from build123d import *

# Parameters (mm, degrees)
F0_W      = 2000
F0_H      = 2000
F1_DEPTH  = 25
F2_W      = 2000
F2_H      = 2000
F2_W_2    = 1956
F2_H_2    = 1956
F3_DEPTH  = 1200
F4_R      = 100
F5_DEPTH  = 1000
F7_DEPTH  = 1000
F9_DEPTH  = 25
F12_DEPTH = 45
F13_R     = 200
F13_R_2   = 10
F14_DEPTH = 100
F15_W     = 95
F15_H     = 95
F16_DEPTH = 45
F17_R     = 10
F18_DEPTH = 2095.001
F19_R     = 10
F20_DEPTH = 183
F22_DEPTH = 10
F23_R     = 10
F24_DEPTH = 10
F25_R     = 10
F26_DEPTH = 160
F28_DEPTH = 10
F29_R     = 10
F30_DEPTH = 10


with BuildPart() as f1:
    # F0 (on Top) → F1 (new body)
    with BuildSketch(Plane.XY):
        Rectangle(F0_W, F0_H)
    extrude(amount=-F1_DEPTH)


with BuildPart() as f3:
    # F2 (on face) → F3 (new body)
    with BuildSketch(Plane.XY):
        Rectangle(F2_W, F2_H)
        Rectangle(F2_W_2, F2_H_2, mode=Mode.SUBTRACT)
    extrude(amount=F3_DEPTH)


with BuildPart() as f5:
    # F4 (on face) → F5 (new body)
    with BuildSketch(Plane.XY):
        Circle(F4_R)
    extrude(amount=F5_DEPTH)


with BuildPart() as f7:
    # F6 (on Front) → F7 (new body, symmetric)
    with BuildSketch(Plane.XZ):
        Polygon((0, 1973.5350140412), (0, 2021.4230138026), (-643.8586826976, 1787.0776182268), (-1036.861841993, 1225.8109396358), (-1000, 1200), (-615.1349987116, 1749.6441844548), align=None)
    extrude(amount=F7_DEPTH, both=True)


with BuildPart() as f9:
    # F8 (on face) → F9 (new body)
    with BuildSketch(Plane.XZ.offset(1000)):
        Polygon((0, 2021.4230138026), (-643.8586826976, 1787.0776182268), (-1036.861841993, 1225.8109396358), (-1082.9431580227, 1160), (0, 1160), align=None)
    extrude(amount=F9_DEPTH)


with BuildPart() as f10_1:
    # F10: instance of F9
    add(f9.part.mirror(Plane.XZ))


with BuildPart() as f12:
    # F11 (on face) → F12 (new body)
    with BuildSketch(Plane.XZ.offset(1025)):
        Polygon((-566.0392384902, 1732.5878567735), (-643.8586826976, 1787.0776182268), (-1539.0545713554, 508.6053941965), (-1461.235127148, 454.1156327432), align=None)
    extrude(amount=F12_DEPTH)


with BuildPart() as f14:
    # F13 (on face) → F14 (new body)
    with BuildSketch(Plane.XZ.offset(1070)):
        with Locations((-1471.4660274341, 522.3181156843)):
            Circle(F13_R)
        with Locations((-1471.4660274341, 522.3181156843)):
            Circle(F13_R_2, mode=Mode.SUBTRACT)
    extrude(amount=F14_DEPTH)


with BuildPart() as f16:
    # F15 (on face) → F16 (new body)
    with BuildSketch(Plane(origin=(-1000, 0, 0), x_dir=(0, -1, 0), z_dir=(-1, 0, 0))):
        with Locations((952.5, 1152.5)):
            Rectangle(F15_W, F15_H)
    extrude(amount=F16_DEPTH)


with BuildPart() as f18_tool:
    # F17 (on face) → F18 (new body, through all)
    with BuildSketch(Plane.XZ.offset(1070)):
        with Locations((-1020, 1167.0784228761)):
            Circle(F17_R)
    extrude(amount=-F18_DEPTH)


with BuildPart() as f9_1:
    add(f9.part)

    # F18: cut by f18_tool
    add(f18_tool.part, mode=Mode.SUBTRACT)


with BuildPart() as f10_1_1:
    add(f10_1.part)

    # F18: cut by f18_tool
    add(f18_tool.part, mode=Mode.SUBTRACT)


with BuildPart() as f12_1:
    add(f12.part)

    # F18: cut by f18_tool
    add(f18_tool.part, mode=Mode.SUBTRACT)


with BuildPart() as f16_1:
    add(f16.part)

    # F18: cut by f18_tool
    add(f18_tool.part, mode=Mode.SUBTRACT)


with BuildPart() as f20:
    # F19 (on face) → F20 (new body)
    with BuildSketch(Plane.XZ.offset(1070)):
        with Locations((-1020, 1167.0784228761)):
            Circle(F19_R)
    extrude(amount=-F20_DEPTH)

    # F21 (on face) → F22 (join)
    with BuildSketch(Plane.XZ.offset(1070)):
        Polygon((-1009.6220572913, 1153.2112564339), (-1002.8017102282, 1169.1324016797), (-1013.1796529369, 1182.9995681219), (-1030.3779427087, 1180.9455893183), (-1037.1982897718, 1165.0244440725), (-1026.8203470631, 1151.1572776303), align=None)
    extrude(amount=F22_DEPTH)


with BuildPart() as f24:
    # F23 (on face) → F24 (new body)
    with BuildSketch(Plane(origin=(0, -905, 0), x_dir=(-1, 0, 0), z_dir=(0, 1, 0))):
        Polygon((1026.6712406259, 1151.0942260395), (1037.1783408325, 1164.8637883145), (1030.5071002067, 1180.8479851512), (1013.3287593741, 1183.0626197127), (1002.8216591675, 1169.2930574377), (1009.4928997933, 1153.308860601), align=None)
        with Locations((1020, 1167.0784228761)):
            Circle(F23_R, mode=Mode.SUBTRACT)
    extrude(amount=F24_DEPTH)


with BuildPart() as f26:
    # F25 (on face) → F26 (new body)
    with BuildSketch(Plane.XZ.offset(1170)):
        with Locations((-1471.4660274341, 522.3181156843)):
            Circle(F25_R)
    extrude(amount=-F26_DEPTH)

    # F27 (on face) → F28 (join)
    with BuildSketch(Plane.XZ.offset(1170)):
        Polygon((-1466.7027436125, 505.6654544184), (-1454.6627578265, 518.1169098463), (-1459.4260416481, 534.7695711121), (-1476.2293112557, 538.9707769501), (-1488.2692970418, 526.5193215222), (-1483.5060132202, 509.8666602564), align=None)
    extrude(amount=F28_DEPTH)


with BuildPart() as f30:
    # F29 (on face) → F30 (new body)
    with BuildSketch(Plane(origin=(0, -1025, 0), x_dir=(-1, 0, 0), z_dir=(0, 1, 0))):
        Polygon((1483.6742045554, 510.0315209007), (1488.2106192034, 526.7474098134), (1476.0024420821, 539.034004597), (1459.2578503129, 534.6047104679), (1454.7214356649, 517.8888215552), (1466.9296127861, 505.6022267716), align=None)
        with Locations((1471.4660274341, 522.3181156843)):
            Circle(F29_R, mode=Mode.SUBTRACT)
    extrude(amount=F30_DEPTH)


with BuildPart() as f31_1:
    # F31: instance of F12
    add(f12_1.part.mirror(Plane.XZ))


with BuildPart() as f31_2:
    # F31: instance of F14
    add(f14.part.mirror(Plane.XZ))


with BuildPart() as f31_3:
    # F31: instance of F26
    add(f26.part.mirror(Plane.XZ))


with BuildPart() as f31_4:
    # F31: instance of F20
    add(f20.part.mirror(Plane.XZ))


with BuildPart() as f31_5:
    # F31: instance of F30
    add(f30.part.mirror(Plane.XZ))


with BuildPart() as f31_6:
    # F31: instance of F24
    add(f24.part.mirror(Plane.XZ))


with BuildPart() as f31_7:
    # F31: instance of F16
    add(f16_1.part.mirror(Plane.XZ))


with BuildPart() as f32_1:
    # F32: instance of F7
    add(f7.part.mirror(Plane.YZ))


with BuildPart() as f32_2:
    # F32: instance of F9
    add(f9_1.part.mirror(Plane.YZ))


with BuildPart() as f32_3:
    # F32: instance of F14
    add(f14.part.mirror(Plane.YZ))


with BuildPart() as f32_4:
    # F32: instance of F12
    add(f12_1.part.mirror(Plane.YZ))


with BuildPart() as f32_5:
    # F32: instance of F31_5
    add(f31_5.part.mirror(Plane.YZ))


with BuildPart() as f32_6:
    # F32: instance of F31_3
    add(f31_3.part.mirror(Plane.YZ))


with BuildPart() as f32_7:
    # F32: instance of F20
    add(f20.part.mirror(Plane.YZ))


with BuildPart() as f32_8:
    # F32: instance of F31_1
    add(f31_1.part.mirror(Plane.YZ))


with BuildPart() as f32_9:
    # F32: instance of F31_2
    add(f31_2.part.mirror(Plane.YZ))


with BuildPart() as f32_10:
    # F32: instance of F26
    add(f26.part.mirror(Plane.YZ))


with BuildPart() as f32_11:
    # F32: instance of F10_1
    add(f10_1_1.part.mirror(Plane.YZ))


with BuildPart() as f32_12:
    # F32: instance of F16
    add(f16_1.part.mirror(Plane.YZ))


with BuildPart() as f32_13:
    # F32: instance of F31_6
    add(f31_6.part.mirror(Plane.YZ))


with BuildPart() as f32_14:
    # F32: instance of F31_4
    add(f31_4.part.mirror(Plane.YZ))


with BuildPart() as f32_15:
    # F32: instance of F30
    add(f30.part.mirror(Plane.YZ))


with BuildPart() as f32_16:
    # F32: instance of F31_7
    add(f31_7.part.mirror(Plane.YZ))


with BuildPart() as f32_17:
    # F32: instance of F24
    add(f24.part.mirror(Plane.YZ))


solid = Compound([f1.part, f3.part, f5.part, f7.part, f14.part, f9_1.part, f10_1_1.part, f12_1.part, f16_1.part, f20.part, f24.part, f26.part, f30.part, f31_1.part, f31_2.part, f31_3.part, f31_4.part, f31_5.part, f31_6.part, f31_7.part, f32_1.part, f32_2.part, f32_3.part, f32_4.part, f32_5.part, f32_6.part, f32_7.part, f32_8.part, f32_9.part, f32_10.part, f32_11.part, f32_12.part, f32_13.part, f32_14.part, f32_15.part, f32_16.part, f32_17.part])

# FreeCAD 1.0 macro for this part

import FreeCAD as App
import Part
import Sketcher
from FreeCAD import Vector
Q = App.Units.Quantity


def add_polygon(sketch, points):
    """Adds a closed chain of lines whose ends are joined by coincident constraints."""
    first, n = sketch.GeometryCount, len(points)
    for a, b in zip(points, points[1:] + points[:1]):
        sketch.addGeometry(Part.LineSegment(App.Vector(*a, 0), App.Vector(*b, 0)), False)
    for i in range(n):
        sketch.addConstraint(Sketcher.Constraint("Coincident", first + i, 2, first + (i + 1) % n, 1))

doc = App.newDocument("Part")
params = doc.addObject("Spreadsheet::Sheet", "Params")
for row, (alias, value) in enumerate([
    ("sketch1_width", "2000 mm"),
    ("pad1_length", "25 mm"),
    ("sketch2_width", "2000 mm"),
    ("sketch2_width2", "1956 mm"),
    ("pad2_length", "1200 mm"),
    ("sketch3_diameter", "200 mm"),
    ("pad3_length", "1000 mm"),
    ("sketch4_length", "45 mm"),
    ("pad4_length", "2000 mm"),
    ("pad5_length", "25 mm"),
    ("sketch6_length", "95 mm"),
    ("pad6_length", "45 mm"),
    ("sketch7_diameter", "400 mm"),
    ("sketch7_diameter2", "20 mm"),
    ("pad7_length", "100 mm"),
    ("sketch8_width", "95 mm"),
    ("pad8_length", "45 mm"),
    ("sketch9_diameter", "20 mm"),
    ("pad9_length", "2095.001 mm"),
    ("sketch10_diameter", "20 mm"),
    ("pad10_length", "183 mm"),
    ("pad11_length", "10 mm"),
    ("sketch12_diameter", "20 mm"),
    ("pad12_length", "10 mm"),
    ("sketch13_diameter", "20 mm"),
    ("pad13_length", "160 mm"),
    ("pad14_length", "10 mm"),
    ("sketch15_diameter", "20 mm"),
    ("pad15_length", "10 mm"),
], start=1):
    params.set(f"A{row}", alias)
    params.set(f"B{row}", "=" + value)
    params.setAlias(f"B{row}", alias)

body = doc.addObject("PartDesign::Body", "Body")

sketch1 = body.newObject("Sketcher::SketchObject", "Sketch")
sketch1.AttachmentSupport = (doc.getObject("XY_Plane"), [""])
sketch1.MapMode = "FlatFace"
add_polygon(sketch1, [(-1000, 1000), (-1000, -1000), (1000, -1000), (1000, 1000)])
sketch1.addConstraint([
    Sketcher.Constraint("Vertical", 0),
    Sketcher.Constraint("Horizontal", 1),
    Sketcher.Constraint("Vertical", 2),
    Sketcher.Constraint("Horizontal", 3),
    Sketcher.Constraint("Symmetric", 0, 2, 2, 2, -1, 1),
    Sketcher.Constraint("Equal", 3, 0),
    Sketcher.Constraint("DistanceX", 1, 1, 1, 2, Q("2000 mm")),
])
sketch1.setExpression("Constraints[10]", "Params.sketch1_width")
pad1 = body.newObject("PartDesign::Pad", "Pad")
pad1.Profile = sketch1
pad1.setExpression("Length", "Params.pad1_length")
pad1.Reversed = True
body2 = doc.addObject("PartDesign::Body", "Body001")

sketch2 = body2.newObject("Sketcher::SketchObject", "Sketch001")
sketch2.AttachmentSupport = (doc.getObject("XY_Plane001"), [""])
sketch2.MapMode = "FlatFace"
add_polygon(sketch2, [(-1000, 1000), (-1000, -1000), (1000, -1000), (1000, 1000)])
add_polygon(sketch2, [(978, -978), (-978, -978), (-978, 978), (978, 978)])
sketch2.addConstraint([
    Sketcher.Constraint("Vertical", 0),
    Sketcher.Constraint("Horizontal", 1),
    Sketcher.Constraint("Vertical", 2),
    Sketcher.Constraint("Horizontal", 3),
    Sketcher.Constraint("Horizontal", 4),
    Sketcher.Constraint("Vertical", 5),
    Sketcher.Constraint("Horizontal", 6),
    Sketcher.Constraint("Vertical", 7),
    Sketcher.Constraint("Symmetric", 0, 2, 2, 2, -1, 1),
    Sketcher.Constraint("Symmetric", 4, 2, 6, 2, -1, 1),
    Sketcher.Constraint("Equal", 3, 0),
    Sketcher.Constraint("Equal", 6, 5),
    Sketcher.Constraint("DistanceX", 1, 1, 1, 2, Q("2000 mm")),
    Sketcher.Constraint("DistanceX", 4, 2, 4, 1, Q("1956 mm")),
])
sketch2.setExpression("Constraints[20]", "Params.sketch2_width")
sketch2.setExpression("Constraints[21]", "Params.sketch2_width2")
pad2 = body2.newObject("PartDesign::Pad", "Pad001")
pad2.Profile = sketch2
pad2.setExpression("Length", "Params.pad2_length")
body3 = doc.addObject("PartDesign::Body", "Body002")

sketch3 = body3.newObject("Sketcher::SketchObject", "Sketch002")
sketch3.AttachmentSupport = (doc.getObject("XY_Plane002"), [""])
sketch3.MapMode = "FlatFace"
sketch3.addGeometry(Part.Circle(Vector(0, 0, 0), Vector(0, 0, 1), 100), False)
sketch3.addConstraint([
    Sketcher.Constraint("Coincident", 0, 3, -1, 1),
    Sketcher.Constraint("Diameter", 0, Q("200 mm")),
])
sketch3.setExpression("Constraints[1]", "Params.sketch3_diameter")
pad3 = body3.newObject("PartDesign::Pad", "Pad002")
pad3.Profile = sketch3
pad3.setExpression("Length", "Params.pad3_length")
body4 = doc.addObject("PartDesign::Body", "Body003")

sketch4 = body4.newObject("Sketcher::SketchObject", "Sketch003")
sketch4.AttachmentSupport = (doc.getObject("XZ_Plane003"), [""])
sketch4.MapMode = "FlatFace"
add_polygon(sketch4, [(0, 1974), (0, 2021), (-644, 1787), (-1037, 1226), (-1000, 1200), (-615, 1750)])
sketch4.addConstraint([
    Sketcher.Constraint("Vertical", 0),
    Sketcher.Constraint("PointOnObject", 0, 2, -2),
    Sketcher.Constraint("Perpendicular", 2, 3),
    Sketcher.Constraint("Perpendicular", 3, 4),
    Sketcher.Constraint("Parallel", 1, 5),
    Sketcher.Constraint("Equal", 1, 2),
    Sketcher.Constraint("Angle", 1, Q("-160 deg")),
    Sketcher.Constraint("Angle", 2, Q("-125 deg")),
    Sketcher.Constraint("Distance", 3, Q("45 mm")),
    Sketcher.Constraint("DistanceX", 3, 2, -1, 1, Q("1000 mm")),
    Sketcher.Constraint("DistanceY", -1, 1, 3, 2, Q("1200 mm")),
    Sketcher.Constraint("DistanceY", 0, 1, 0, 2, Q("47.888 mm")),
])
sketch4.setExpression("Constraints[14]", "Params.sketch4_length")
pad4 = body4.newObject("PartDesign::Pad", "Pad003")
pad4.Profile = sketch4
pad4.setExpression("Length", "Params.pad4_length")
pad4.Midplane = True
body5 = doc.addObject("PartDesign::Body", "Body004")

sketch5 = body5.newObject("Sketcher::SketchObject", "Sketch004")
sketch5.AttachmentSupport = (doc.getObject("XZ_Plane004"), [""])
sketch5.MapMode = "FlatFace"
sketch5.AttachmentOffset = App.Placement(Vector(0, 0, 1000), App.Rotation())
add_polygon(sketch5, [(0, 2021), (-644, 1787), (-1083, 1160), (0, 1160)])
sketch5.addConstraint([
    Sketcher.Constraint("Horizontal", 2),
    Sketcher.Constraint("Vertical", 3),
    Sketcher.Constraint("PointOnObject", 2, 2, -2),
    Sketcher.Constraint("Angle", 0, Q("-160 deg")),
    Sketcher.Constraint("Angle", 1, Q("-125 deg")),
    Sketcher.Constraint("DistanceY", -1, 1, 1, 2, Q("1160 mm")),
    Sketcher.Constraint("Distance", 0, Q("685.180099 mm")),
    Sketcher.Constraint("DistanceX", 2, 1, 2, 2, Q("1082.943158 mm")),
])
pad5 = body5.newObject("PartDesign::Pad", "Pad004")
pad5.Profile = sketch5
pad5.setExpression("Length", "Params.pad5_length")
body6 = doc.addObject("PartDesign::Body", "Body005")
doc.recompute()

mirroring = doc.addObject("Part::Mirroring", "Mirroring")
mirroring.Source = body5
mirroring.Base = Vector(0, 0, 0)
mirroring.Normal = Vector(0, -1, 0)
body6.BaseFeature = mirroring
doc.recompute()
body7 = doc.addObject("PartDesign::Body", "Body006")

sketch6 = body7.newObject("Sketcher::SketchObject", "Sketch005")
sketch6.AttachmentSupport = (doc.getObject("XZ_Plane006"), [""])
sketch6.MapMode = "FlatFace"
sketch6.AttachmentOffset = App.Placement(Vector(0, 0, 1025), App.Rotation())
add_polygon(sketch6, [(-566, 1733), (-644, 1787), (-1539, 509), (-1461, 454)])
sketch6.addConstraint([
    Sketcher.Constraint("Perpendicular", 0, 1),
    Sketcher.Constraint("Perpendicular", 1, 2),
    Sketcher.Constraint("Perpendicular", 2, 3),
    Sketcher.Constraint("Angle", 0, Q("145 deg")),
    Sketcher.Constraint("Distance", 0, Q("95 mm")),
    Sketcher.Constraint("DistanceY", -1, 1, 0, 2, Q("1787.077618 mm")),
    Sketcher.Constraint("DistanceX", 1, 2, -1, 1, Q("1539.054571 mm")),
    Sketcher.Constraint("DistanceX", 3, 2, -1, 1, Q("566.039238 mm")),
])
sketch6.setExpression("Constraints[8]", "Params.sketch6_length")
pad6 = body7.newObject("PartDesign::Pad", "Pad005")
pad6.Profile = sketch6
pad6.setExpression("Length", "Params.pad6_length")
body8 = doc.addObject("PartDesign::Body", "Body007")

sketch7 = body8.newObject("Sketcher::SketchObject", "Sketch006")
sketch7.AttachmentSupport = (doc.getObject("XZ_Plane007"), [""])
sketch7.MapMode = "FlatFace"
sketch7.AttachmentOffset = App.Placement(Vector(0, 0, 1070), App.Rotation())
sketch7.addGeometry([
    Part.Circle(Vector(-1471, 522, 0), Vector(0, 0, 1), 200),
    Part.Circle(Vector(-1471, 522, 0), Vector(0, 0, 1), 10),
], False)
sketch7.addConstraint([
    Sketcher.Constraint("Coincident", 1, 3, 0, 3),
    Sketcher.Constraint("Diameter", 0, Q("400 mm")),
    Sketcher.Constraint("Diameter", 1, Q("20 mm")),
    Sketcher.Constraint("DistanceX", 0, 3, -1, 1, Q("1471.466027 mm")),
    Sketcher.Constraint("DistanceY", -1, 1, 0, 3, Q("522.318116 mm")),
])
sketch7.setExpression("Constraints[1]", "Params.sketch7_diameter")
sketch7.setExpression("Constraints[2]", "Params.sketch7_diameter2")
pad7 = body8.newObject("PartDesign::Pad", "Pad006")
pad7.Profile = sketch7
pad7.setExpression("Length", "Params.pad7_length")
body9 = doc.addObject("PartDesign::Body", "Body008")

sketch8 = body9.newObject("Sketcher::SketchObject", "Sketch007")
sketch8.AttachmentSupport = (doc.getObject("YZ_Plane008"), [""])
sketch8.MapMode = "FlatFace"
sketch8.AttachmentOffset = App.Placement(Vector(0, 0, -1000), App.Rotation())
add_polygon(sketch8, [(-905, 1200), (-905, 1105), (-1000, 1105), (-1000, 1200)])
sketch8.addConstraint([
    Sketcher.Constraint("Vertical", 0),
    Sketcher.Constraint("Horizontal", 1),
    Sketcher.Constraint("Vertical", 2),
    Sketcher.Constraint("Horizontal", 3),
    Sketcher.Constraint("Equal", 3, 0),
    Sketcher.Constraint("DistanceX", 1, 2, 1, 1, Q("95 mm")),
    Sketcher.Constraint("DistanceX", 0, 2, -1, 1, Q("905 mm")),
    Sketcher.Constraint("DistanceY", -1, 1, 0, 2, Q("1105 mm")),
])
sketch8.setExpression("Constraints[9]", "Params.sketch8_width")
pad8 = body9.newObject("PartDesign::Pad", "Pad007")
pad8.Profile = sketch8
pad8.setExpression("Length", "Params.pad8_length")
pad8.Reversed = True
body10 = doc.addObject("PartDesign::Body", "Body009")

sketch9 = body10.newObject("Sketcher::SketchObject", "Sketch008")
sketch9.AttachmentSupport = (doc.getObject("XZ_Plane009"), [""])
sketch9.MapMode = "FlatFace"
sketch9.AttachmentOffset = App.Placement(Vector(0, 0, 1070), App.Rotation())
sketch9.addGeometry(Part.Circle(Vector(-1020, 1167, 0), Vector(0, 0, 1), 10), False)
sketch9.addConstraint([
    Sketcher.Constraint("Diameter", 0, Q("20 mm")),
    Sketcher.Constraint("DistanceX", 0, 3, -1, 1, Q("1020 mm")),
    Sketcher.Constraint("DistanceY", -1, 1, 0, 3, Q("1167.078423 mm")),
])
sketch9.setExpression("Constraints[0]", "Params.sketch9_diameter")
pad9 = body10.newObject("PartDesign::Pad", "Pad008")
pad9.Profile = sketch9
pad9.setExpression("Length", "Params.pad9_length")
pad9.Reversed = True
doc.recompute()

body11 = doc.addObject("PartDesign::Body", "Body010")
body11.BaseFeature = body10
boolean = body5.newObject("PartDesign::Boolean", "Boolean")
boolean.Type = "Cut"
boolean.addObjects([body11])
doc.recompute()

body12 = doc.addObject("PartDesign::Body", "Body011")
body12.BaseFeature = body10
boolean2 = body6.newObject("PartDesign::Boolean", "Boolean001")
boolean2.Type = "Cut"
boolean2.addObjects([body12])
doc.recompute()

body13 = doc.addObject("PartDesign::Body", "Body012")
body13.BaseFeature = body10
boolean3 = body7.newObject("PartDesign::Boolean", "Boolean002")
boolean3.Type = "Cut"
boolean3.addObjects([body13])
doc.recompute()

boolean4 = body9.newObject("PartDesign::Boolean", "Boolean003")
boolean4.Type = "Cut"
boolean4.addObjects([body10])
body14 = doc.addObject("PartDesign::Body", "Body013")

sketch10 = body14.newObject("Sketcher::SketchObject", "Sketch009")
sketch10.AttachmentSupport = (doc.getObject("XZ_Plane013"), [""])
sketch10.MapMode = "FlatFace"
sketch10.AttachmentOffset = App.Placement(Vector(0, 0, 1070), App.Rotation())
sketch10.addGeometry(Part.Circle(Vector(-1020, 1167, 0), Vector(0, 0, 1), 10), False)
sketch10.addConstraint([
    Sketcher.Constraint("Diameter", 0, Q("20 mm")),
    Sketcher.Constraint("DistanceX", 0, 3, -1, 1, Q("1020 mm")),
    Sketcher.Constraint("DistanceY", -1, 1, 0, 3, Q("1167.078423 mm")),
])
sketch10.setExpression("Constraints[0]", "Params.sketch10_diameter")
pad10 = body14.newObject("PartDesign::Pad", "Pad009")
pad10.Profile = sketch10
pad10.setExpression("Length", "Params.pad10_length")
pad10.Reversed = True

sketch11 = body14.newObject("Sketcher::SketchObject", "Sketch010")
sketch11.AttachmentSupport = (doc.getObject("XZ_Plane013"), [""])
sketch11.MapMode = "FlatFace"
sketch11.AttachmentOffset = App.Placement(Vector(0, 0, 1070), App.Rotation())
add_polygon(sketch11, [(-1010, 1153), (-1003, 1169), (-1013, 1183), (-1030, 1181), (-1037, 1165), (-1027, 1151)])
sketch11.addConstraint([
    Sketcher.Constraint("Parallel", 0, 3),
    Sketcher.Constraint("Parallel", 1, 4),
    Sketcher.Constraint("Parallel", 2, 5),
    Sketcher.Constraint("Equal", 0, 1),
    Sketcher.Constraint("Equal", 1, 2),
    Sketcher.Constraint("Equal", 2, 3),
    Sketcher.Constraint("DistanceY", -1, 1, 0, 2, Q("1169.132402 mm")),
    Sketcher.Constraint("Distance", 0, Q("17.320508 mm")),
    Sketcher.Constraint("DistanceX", 0, 2, -1, 1, Q("1002.80171 mm")),
    Sketcher.Constraint("DistanceY", -1, 1, 1, 2, Q("1182.999568 mm")),
    Sketcher.Constraint("DistanceY", -1, 1, 2, 2, Q("1180.945589 mm")),
    Sketcher.Constraint("DistanceX", 3, 2, -1, 1, Q("1037.19829 mm")),
])
pad11 = body14.newObject("PartDesign::Pad", "Pad010")
pad11.Profile = sketch11
pad11.setExpression("Length", "Params.pad11_length")
body15 = doc.addObject("PartDesign::Body", "Body014")

sketch12 = body15.newObject("Sketcher::SketchObject", "Sketch011")
sketch12.AttachmentSupport = (doc.getObject("XZ_Plane014"), [""])
sketch12.MapMode = "FlatFace"
sketch12.AttachmentOffset = App.Placement(Vector(0, 0, 905), App.Rotation())
add_polygon(sketch12, [(-1027, 1151), (-1037, 1165), (-1031, 1181), (-1013, 1183), (-1003, 1169), (-1009, 1153)])
sketch12.addGeometry(Part.Circle(Vector(-1020, 1167, 0), Vector(0, 0, 1), 10), False)
sketch12.addConstraint([
    Sketcher.Constraint("Parallel", 0, 3),
    Sketcher.Constraint("Parallel", 1, 4),
    Sketcher.Constraint("Parallel", 2, 5),
    Sketcher.Constraint("Equal", 0, 1),
    Sketcher.Constraint("Equal", 1, 2),
    Sketcher.Constraint("Equal", 2, 3),
    Sketcher.Constraint("Diameter", 6, Q("20 mm")),
    Sketcher.Constraint("DistanceX", 6, 3, -1, 1, Q("1020 mm")),
    Sketcher.Constraint("DistanceX", 1, 2, -1, 1, Q("1030.5071 mm")),
    Sketcher.Constraint("DistanceX", 4, 2, -1, 1, Q("1009.4929 mm")),
    Sketcher.Constraint("DistanceX", 2, 2, 3, 2, Q("10.5071 mm")),
    Sketcher.Constraint("Distance", 0, Q("17.320508 mm")),
    Sketcher.Constraint("DistanceX", 0, 2, -1, 1, Q("1037.178341 mm")),
    Sketcher.Constraint("DistanceY", -1, 1, 0, 2, Q("1164.863788 mm")),
    Sketcher.Constraint("DistanceY", -1, 1, 6, 3, Q("1167.078423 mm")),
])
sketch12.setExpression("Constraints[12]", "Params.sketch12_diameter")
pad12 = body15.newObject("PartDesign::Pad", "Pad011")
pad12.Profile = sketch12
pad12.setExpression("Length", "Params.pad12_length")
pad12.Reversed = True
body16 = doc.addObject("PartDesign::Body", "Body015")

sketch13 = body16.newObject("Sketcher::SketchObject", "Sketch012")
sketch13.AttachmentSupport = (doc.getObject("XZ_Plane015"), [""])
sketch13.MapMode = "FlatFace"
sketch13.AttachmentOffset = App.Placement(Vector(0, 0, 1170), App.Rotation())
sketch13.addGeometry(Part.Circle(Vector(-1471, 522, 0), Vector(0, 0, 1), 10), False)
sketch13.addConstraint([
    Sketcher.Constraint("Diameter", 0, Q("20 mm")),
    Sketcher.Constraint("DistanceX", 0, 3, -1, 1, Q("1471.466027 mm")),
    Sketcher.Constraint("DistanceY", -1, 1, 0, 3, Q("522.318116 mm")),
])
sketch13.setExpression("Constraints[0]", "Params.sketch13_diameter")
pad13 = body16.newObject("PartDesign::Pad", "Pad012")
pad13.Profile = sketch13
pad13.setExpression("Length", "Params.pad13_length")
pad13.Reversed = True

sketch14 = body16.newObject("Sketcher::SketchObject", "Sketch013")
sketch14.AttachmentSupport = (doc.getObject("XZ_Plane015"), [""])
sketch14.MapMode = "FlatFace"
sketch14.AttachmentOffset = App.Placement(Vector(0, 0, 1170), App.Rotation())
add_polygon(sketch14, [(-1467, 506), (-1455, 518), (-1459, 535), (-1476, 539), (-1488, 527), (-1484, 510)])
sketch14.addConstraint([
    Sketcher.Constraint("Parallel", 0, 3),
    Sketcher.Constraint("Parallel", 1, 4),
    Sketcher.Constraint("Parallel", 2, 5),
    Sketcher.Constraint("Equal", 0, 1),
    Sketcher.Constraint("Equal", 1, 2),
    Sketcher.Constraint("Equal", 2, 3),
    Sketcher.Constraint("DistanceX", 4, 2, 2, 2, Q("7.276702 mm")),
    Sketcher.Constraint("Distance", 0, Q("17.320508 mm")),
    Sketcher.Constraint("DistanceY", -1, 1, 0, 2, Q("518.11691 mm")),
    Sketcher.Constraint("DistanceX", 1, 2, -1, 1, Q("1459.426042 mm")),
    Sketcher.Constraint("DistanceY", -1, 1, 1, 2, Q("534.769571 mm")),
    Sketcher.Constraint("DistanceX", 2, 2, -1, 1, Q("1476.229311 mm")),
])
pad14 = body16.newObject("PartDesign::Pad", "Pad013")
pad14.Profile = sketch14
pad14.setExpression("Length", "Params.pad14_length")
body17 = doc.addObject("PartDesign::Body", "Body016")

sketch15 = body17.newObject("Sketcher::SketchObject", "Sketch014")
sketch15.AttachmentSupport = (doc.getObject("XZ_Plane016"), [""])
sketch15.MapMode = "FlatFace"
sketch15.AttachmentOffset = App.Placement(Vector(0, 0, 1025), App.Rotation())
add_polygon(sketch15, [(-1484, 510), (-1488, 527), (-1476, 539), (-1459, 535), (-1455, 518), (-1467, 506)])
sketch15.addGeometry(Part.Circle(Vector(-1471, 522, 0), Vector(0, 0, 1), 10), False)
sketch15.addConstraint([
    Sketcher.Constraint("Parallel", 0, 3),
    Sketcher.Constraint("Parallel", 1, 4),
    Sketcher.Constraint("Parallel", 2, 5),
    Sketcher.Constraint("Equal", 0, 1),
    Sketcher.Constraint("Equal", 1, 2),
    Sketcher.Constraint("Equal", 2, 3),
    Sketcher.Constraint("Diameter", 6, Q("20 mm")),
    Sketcher.Constraint("DistanceY", 0, 2, 2, 2, Q("7.857301 mm")),
    Sketcher.Constraint("Distance", 0, Q("17.320508 mm")),
    Sketcher.Constraint("DistanceX", 0, 2, -1, 1, Q("1488.210619 mm")),
    Sketcher.Constraint("DistanceY", -1, 1, 0, 2, Q("526.74741 mm")),
    Sketcher.Constraint("DistanceX", 2, 2, -1, 1, Q("1459.25785 mm")),
    Sketcher.Constraint("DistanceY", -1, 1, 3, 2, Q("517.888822 mm")),
    Sketcher.Constraint("DistanceX", 0, 2, 6, 3, Q("16.744592 mm")),
    Sketcher.Constraint("DistanceY", 6, 3, 1, 2, Q("16.715889 mm")),
])
sketch15.setExpression("Constraints[12]", "Params.sketch15_diameter")
pad15 = body17.newObject("PartDesign::Pad", "Pad014")
pad15.Profile = sketch15
pad15.setExpression("Length", "Params.pad15_length")
pad15.Reversed = True
body18 = doc.addObject("PartDesign::Body", "Body017")
doc.recompute()

mirroring2 = doc.addObject("Part::Mirroring", "Mirroring001")
mirroring2.Source = body7
mirroring2.Base = Vector(0, 0, 0)
mirroring2.Normal = Vector(0, -1, 0)
body18.BaseFeature = mirroring2
doc.recompute()
body19 = doc.addObject("PartDesign::Body", "Body018")
doc.recompute()

mirroring3 = doc.addObject("Part::Mirroring", "Mirroring002")
mirroring3.Source = body8
mirroring3.Base = Vector(0, 0, 0)
mirroring3.Normal = Vector(0, -1, 0)
body19.BaseFeature = mirroring3
doc.recompute()
body20 = doc.addObject("PartDesign::Body", "Body019")
doc.recompute()

mirroring4 = doc.addObject("Part::Mirroring", "Mirroring003")
mirroring4.Source = body16
mirroring4.Base = Vector(0, 0, 0)
mirroring4.Normal = Vector(0, -1, 0)
body20.BaseFeature = mirroring4
doc.recompute()
body21 = doc.addObject("PartDesign::Body", "Body020")
doc.recompute()

mirroring5 = doc.addObject("Part::Mirroring", "Mirroring004")
mirroring5.Source = body14
mirroring5.Base = Vector(0, 0, 0)
mirroring5.Normal = Vector(0, -1, 0)
body21.BaseFeature = mirroring5
doc.recompute()
body22 = doc.addObject("PartDesign::Body", "Body021")
doc.recompute()

mirroring6 = doc.addObject("Part::Mirroring", "Mirroring005")
mirroring6.Source = body17
mirroring6.Base = Vector(0, 0, 0)
mirroring6.Normal = Vector(0, -1, 0)
body22.BaseFeature = mirroring6
doc.recompute()
body23 = doc.addObject("PartDesign::Body", "Body022")
doc.recompute()

mirroring7 = doc.addObject("Part::Mirroring", "Mirroring006")
mirroring7.Source = body15
mirroring7.Base = Vector(0, 0, 0)
mirroring7.Normal = Vector(0, -1, 0)
body23.BaseFeature = mirroring7
doc.recompute()
body24 = doc.addObject("PartDesign::Body", "Body023")
doc.recompute()

mirroring8 = doc.addObject("Part::Mirroring", "Mirroring007")
mirroring8.Source = body9
mirroring8.Base = Vector(0, 0, 0)
mirroring8.Normal = Vector(0, -1, 0)
body24.BaseFeature = mirroring8
doc.recompute()
body25 = doc.addObject("PartDesign::Body", "Body024")
doc.recompute()

mirroring9 = doc.addObject("Part::Mirroring", "Mirroring008")
mirroring9.Source = body4
mirroring9.Base = Vector(0, 0, 0)
mirroring9.Normal = Vector(1, 0, 0)
body25.BaseFeature = mirroring9
doc.recompute()
body26 = doc.addObject("PartDesign::Body", "Body025")
doc.recompute()

mirroring10 = doc.addObject("Part::Mirroring", "Mirroring009")
mirroring10.Source = body5
mirroring10.Base = Vector(0, 0, 0)
mirroring10.Normal = Vector(1, 0, 0)
body26.BaseFeature = mirroring10
doc.recompute()
body27 = doc.addObject("PartDesign::Body", "Body026")
doc.recompute()

mirroring11 = doc.addObject("Part::Mirroring", "Mirroring010")
mirroring11.Source = body8
mirroring11.Base = Vector(0, 0, 0)
mirroring11.Normal = Vector(1, 0, 0)
body27.BaseFeature = mirroring11
doc.recompute()
body28 = doc.addObject("PartDesign::Body", "Body027")
doc.recompute()

mirroring12 = doc.addObject("Part::Mirroring", "Mirroring011")
mirroring12.Source = body7
mirroring12.Base = Vector(0, 0, 0)
mirroring12.Normal = Vector(1, 0, 0)
body28.BaseFeature = mirroring12
doc.recompute()
body29 = doc.addObject("PartDesign::Body", "Body028")
doc.recompute()

mirroring13 = doc.addObject("Part::Mirroring", "Mirroring012")
mirroring13.Source = body22
mirroring13.Base = Vector(0, 0, 0)
mirroring13.Normal = Vector(1, 0, 0)
body29.BaseFeature = mirroring13
doc.recompute()
body30 = doc.addObject("PartDesign::Body", "Body029")
doc.recompute()

mirroring14 = doc.addObject("Part::Mirroring", "Mirroring013")
mirroring14.Source = body20
mirroring14.Base = Vector(0, 0, 0)
mirroring14.Normal = Vector(1, 0, 0)
body30.BaseFeature = mirroring14
doc.recompute()
body31 = doc.addObject("PartDesign::Body", "Body030")
doc.recompute()

mirroring15 = doc.addObject("Part::Mirroring", "Mirroring014")
mirroring15.Source = body14
mirroring15.Base = Vector(0, 0, 0)
mirroring15.Normal = Vector(1, 0, 0)
body31.BaseFeature = mirroring15
doc.recompute()
body32 = doc.addObject("PartDesign::Body", "Body031")
doc.recompute()

mirroring16 = doc.addObject("Part::Mirroring", "Mirroring015")
mirroring16.Source = body18
mirroring16.Base = Vector(0, 0, 0)
mirroring16.Normal = Vector(1, 0, 0)
body32.BaseFeature = mirroring16
doc.recompute()
body33 = doc.addObject("PartDesign::Body", "Body032")
doc.recompute()

mirroring17 = doc.addObject("Part::Mirroring", "Mirroring016")
mirroring17.Source = body19
mirroring17.Base = Vector(0, 0, 0)
mirroring17.Normal = Vector(1, 0, 0)
body33.BaseFeature = mirroring17
doc.recompute()
body34 = doc.addObject("PartDesign::Body", "Body033")
doc.recompute()

mirroring18 = doc.addObject("Part::Mirroring", "Mirroring017")
mirroring18.Source = body16
mirroring18.Base = Vector(0, 0, 0)
mirroring18.Normal = Vector(1, 0, 0)
body34.BaseFeature = mirroring18
doc.recompute()
body35 = doc.addObject("PartDesign::Body", "Body034")
doc.recompute()

mirroring19 = doc.addObject("Part::Mirroring", "Mirroring018")
mirroring19.Source = body6
mirroring19.Base = Vector(0, 0, 0)
mirroring19.Normal = Vector(1, 0, 0)
body35.BaseFeature = mirroring19
doc.recompute()
body36 = doc.addObject("PartDesign::Body", "Body035")
doc.recompute()

mirroring20 = doc.addObject("Part::Mirroring", "Mirroring019")
mirroring20.Source = body9
mirroring20.Base = Vector(0, 0, 0)
mirroring20.Normal = Vector(1, 0, 0)
body36.BaseFeature = mirroring20
doc.recompute()
body37 = doc.addObject("PartDesign::Body", "Body036")
doc.recompute()

mirroring21 = doc.addObject("Part::Mirroring", "Mirroring020")
mirroring21.Source = body23
mirroring21.Base = Vector(0, 0, 0)
mirroring21.Normal = Vector(1, 0, 0)
body37.BaseFeature = mirroring21
doc.recompute()
body38 = doc.addObject("PartDesign::Body", "Body037")
doc.recompute()

mirroring22 = doc.addObject("Part::Mirroring", "Mirroring021")
mirroring22.Source = body21
mirroring22.Base = Vector(0, 0, 0)
mirroring22.Normal = Vector(1, 0, 0)
body38.BaseFeature = mirroring22
doc.recompute()
body39 = doc.addObject("PartDesign::Body", "Body038")
doc.recompute()

mirroring23 = doc.addObject("Part::Mirroring", "Mirroring022")
mirroring23.Source = body17
mirroring23.Base = Vector(0, 0, 0)
mirroring23.Normal = Vector(1, 0, 0)
body39.BaseFeature = mirroring23
doc.recompute()
body40 = doc.addObject("PartDesign::Body", "Body039")
doc.recompute()

mirroring24 = doc.addObject("Part::Mirroring", "Mirroring023")
mirroring24.Source = body24
mirroring24.Base = Vector(0, 0, 0)
mirroring24.Normal = Vector(1, 0, 0)
body40.BaseFeature = mirroring24
doc.recompute()
body41 = doc.addObject("PartDesign::Body", "Body040")
doc.recompute()

mirroring25 = doc.addObject("Part::Mirroring", "Mirroring024")
mirroring25.Source = body15
mirroring25.Base = Vector(0, 0, 0)
mirroring25.Normal = Vector(1, 0, 0)
body41.BaseFeature = mirroring25
doc.recompute()

doc.recompute()
